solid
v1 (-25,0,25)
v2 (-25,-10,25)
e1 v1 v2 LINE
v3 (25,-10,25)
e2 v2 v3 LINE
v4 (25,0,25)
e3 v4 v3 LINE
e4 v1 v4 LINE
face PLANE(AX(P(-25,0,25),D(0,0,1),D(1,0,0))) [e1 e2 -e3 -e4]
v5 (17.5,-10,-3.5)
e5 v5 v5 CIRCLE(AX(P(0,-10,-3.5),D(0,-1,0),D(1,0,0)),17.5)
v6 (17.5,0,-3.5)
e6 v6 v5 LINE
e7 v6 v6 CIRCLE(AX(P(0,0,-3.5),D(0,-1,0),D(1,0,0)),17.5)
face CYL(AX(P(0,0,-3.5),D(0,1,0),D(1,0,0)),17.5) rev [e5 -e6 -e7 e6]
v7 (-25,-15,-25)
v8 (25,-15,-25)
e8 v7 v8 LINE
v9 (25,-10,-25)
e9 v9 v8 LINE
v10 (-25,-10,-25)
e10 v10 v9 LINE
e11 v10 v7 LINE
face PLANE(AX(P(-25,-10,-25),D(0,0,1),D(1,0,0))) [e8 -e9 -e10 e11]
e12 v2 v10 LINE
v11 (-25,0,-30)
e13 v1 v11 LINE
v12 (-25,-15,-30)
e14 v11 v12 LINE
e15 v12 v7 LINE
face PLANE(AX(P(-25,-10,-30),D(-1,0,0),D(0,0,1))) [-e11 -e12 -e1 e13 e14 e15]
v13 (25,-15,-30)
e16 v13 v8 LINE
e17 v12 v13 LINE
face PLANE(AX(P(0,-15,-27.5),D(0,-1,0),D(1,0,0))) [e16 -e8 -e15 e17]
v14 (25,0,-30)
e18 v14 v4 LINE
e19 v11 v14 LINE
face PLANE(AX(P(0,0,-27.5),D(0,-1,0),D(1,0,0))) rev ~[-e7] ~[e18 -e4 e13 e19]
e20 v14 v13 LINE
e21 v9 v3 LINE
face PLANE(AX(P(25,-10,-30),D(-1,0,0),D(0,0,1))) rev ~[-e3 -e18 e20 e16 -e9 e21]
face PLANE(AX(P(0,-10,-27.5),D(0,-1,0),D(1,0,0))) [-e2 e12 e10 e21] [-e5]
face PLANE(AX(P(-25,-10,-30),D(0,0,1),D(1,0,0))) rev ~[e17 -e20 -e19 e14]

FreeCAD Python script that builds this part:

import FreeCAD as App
import Part
import Sketcher

doc = App.newDocument("Part")
body = doc.addObject("PartDesign::Body", "Body")

# Sketch on XZ plane
sketch1 = body.newObject("Sketcher::SketchObject", "Sketch")
sketch1.AttachmentSupport = (doc.getObject("XZ_Plane"), [""])
sketch1.MapMode = "FlatFace"
sketch1.addGeometry(Part.LineSegment(App.Vector(-25, -30, 0), App.Vector(25, -30, 0)), False)
sketch1.addGeometry(Part.LineSegment(App.Vector(25, -30, 0), App.Vector(25, 25, 0)), False)
sketch1.addGeometry(Part.LineSegment(App.Vector(25, 25, 0), App.Vector(-25, 25, 0)), False)
sketch1.addGeometry(Part.LineSegment(App.Vector(-25, 25, 0), App.Vector(-25, -30, 0)), False)
sketch1.addGeometry(Part.Circle(App.Vector(0, -4, 0), App.Vector(0, 0, 1), 18), False)
sketch1.addConstraint(Sketcher.Constraint("Coincident", 0, 2, 1, 1))
sketch1.addConstraint(Sketcher.Constraint("Coincident", 1, 2, 2, 1))
sketch1.addConstraint(Sketcher.Constraint("Coincident", 2, 2, 3, 1))
sketch1.addConstraint(Sketcher.Constraint("Coincident", 3, 2, 0, 1))
sketch1.addConstraint(Sketcher.Constraint("Horizontal", 0))
sketch1.addConstraint(Sketcher.Constraint("Vertical", 1))
sketch1.addConstraint(Sketcher.Constraint("Horizontal", 2))
sketch1.addConstraint(Sketcher.Constraint("Vertical", 3))
sketch1.addConstraint(Sketcher.Constraint("PointOnObject", 4, 3, -2))
sketch1.addConstraint(Sketcher.Constraint("Diameter", 4, 35.0))
sketch1.addConstraint(Sketcher.Constraint("DistanceX", 0, 1, 0, 2, 50.0))
sketch1.addConstraint(Sketcher.Constraint("DistanceY", 1, 1, 1, 2, 55.0))
sketch1.addConstraint(Sketcher.Constraint("DistanceX", -1, 1, 0, 2, 25.0))
sketch1.addConstraint(Sketcher.Constraint("DistanceY", 0, 2, -1, 1, 30.0))
sketch1.addConstraint(Sketcher.Constraint("DistanceY", 4, 3, -1, 1, 3.5))
pad1 = body.newObject("PartDesign::Pad", "Pad")
pad1.Profile = sketch1
pad1.Length = 10

# Sketch on XZ plane
sketch2 = body.newObject("Sketcher::SketchObject", "Sketch001")
sketch2.AttachmentSupport = (doc.getObject("XZ_Plane"), [""])
sketch2.MapMode = "FlatFace"
sketch2.AttachmentOffset = App.Placement(App.Vector(0, 0, 10), App.Rotation())
sketch2.addGeometry(Part.LineSegment(App.Vector(-25, -25, 0), App.Vector(-25, -30, 0)), False)
sketch2.addGeometry(Part.LineSegment(App.Vector(-25, -30, 0), App.Vector(25, -30, 0)), False)
sketch2.addGeometry(Part.LineSegment(App.Vector(25, -30, 0), App.Vector(25, -25, 0)), False)
sketch2.addGeometry(Part.LineSegment(App.Vector(25, -25, 0), App.Vector(-25, -25, 0)), False)
sketch2.addConstraint(Sketcher.Constraint("Coincident", 0, 2, 1, 1))
sketch2.addConstraint(Sketcher.Constraint("Coincident", 1, 2, 2, 1))
sketch2.addConstraint(Sketcher.Constraint("Coincident", 2, 2, 3, 1))
sketch2.addConstraint(Sketcher.Constraint("Coincident", 3, 2, 0, 1))
sketch2.addConstraint(Sketcher.Constraint("Vertical", 0))
sketch2.addConstraint(Sketcher.Constraint("Horizontal", 1))
sketch2.addConstraint(Sketcher.Constraint("Vertical", 2))
sketch2.addConstraint(Sketcher.Constraint("Horizontal", 3))
sketch2.addConstraint(Sketcher.Constraint("DistanceX", 1, 1, 1, 2, 50.0))
sketch2.addConstraint(Sketcher.Constraint("DistanceY", 0, 2, 0, 1, 5.0))
sketch2.addConstraint(Sketcher.Constraint("DistanceX", 0, 2, -1, 1, 25.0))
sketch2.addConstraint(Sketcher.Constraint("DistanceY", 0, 2, -1, 1, 30.0))
pad2 = body.newObject("PartDesign::Pad", "Pad001")
pad2.Profile = sketch2
pad2.Length = 5

doc.recompute()
